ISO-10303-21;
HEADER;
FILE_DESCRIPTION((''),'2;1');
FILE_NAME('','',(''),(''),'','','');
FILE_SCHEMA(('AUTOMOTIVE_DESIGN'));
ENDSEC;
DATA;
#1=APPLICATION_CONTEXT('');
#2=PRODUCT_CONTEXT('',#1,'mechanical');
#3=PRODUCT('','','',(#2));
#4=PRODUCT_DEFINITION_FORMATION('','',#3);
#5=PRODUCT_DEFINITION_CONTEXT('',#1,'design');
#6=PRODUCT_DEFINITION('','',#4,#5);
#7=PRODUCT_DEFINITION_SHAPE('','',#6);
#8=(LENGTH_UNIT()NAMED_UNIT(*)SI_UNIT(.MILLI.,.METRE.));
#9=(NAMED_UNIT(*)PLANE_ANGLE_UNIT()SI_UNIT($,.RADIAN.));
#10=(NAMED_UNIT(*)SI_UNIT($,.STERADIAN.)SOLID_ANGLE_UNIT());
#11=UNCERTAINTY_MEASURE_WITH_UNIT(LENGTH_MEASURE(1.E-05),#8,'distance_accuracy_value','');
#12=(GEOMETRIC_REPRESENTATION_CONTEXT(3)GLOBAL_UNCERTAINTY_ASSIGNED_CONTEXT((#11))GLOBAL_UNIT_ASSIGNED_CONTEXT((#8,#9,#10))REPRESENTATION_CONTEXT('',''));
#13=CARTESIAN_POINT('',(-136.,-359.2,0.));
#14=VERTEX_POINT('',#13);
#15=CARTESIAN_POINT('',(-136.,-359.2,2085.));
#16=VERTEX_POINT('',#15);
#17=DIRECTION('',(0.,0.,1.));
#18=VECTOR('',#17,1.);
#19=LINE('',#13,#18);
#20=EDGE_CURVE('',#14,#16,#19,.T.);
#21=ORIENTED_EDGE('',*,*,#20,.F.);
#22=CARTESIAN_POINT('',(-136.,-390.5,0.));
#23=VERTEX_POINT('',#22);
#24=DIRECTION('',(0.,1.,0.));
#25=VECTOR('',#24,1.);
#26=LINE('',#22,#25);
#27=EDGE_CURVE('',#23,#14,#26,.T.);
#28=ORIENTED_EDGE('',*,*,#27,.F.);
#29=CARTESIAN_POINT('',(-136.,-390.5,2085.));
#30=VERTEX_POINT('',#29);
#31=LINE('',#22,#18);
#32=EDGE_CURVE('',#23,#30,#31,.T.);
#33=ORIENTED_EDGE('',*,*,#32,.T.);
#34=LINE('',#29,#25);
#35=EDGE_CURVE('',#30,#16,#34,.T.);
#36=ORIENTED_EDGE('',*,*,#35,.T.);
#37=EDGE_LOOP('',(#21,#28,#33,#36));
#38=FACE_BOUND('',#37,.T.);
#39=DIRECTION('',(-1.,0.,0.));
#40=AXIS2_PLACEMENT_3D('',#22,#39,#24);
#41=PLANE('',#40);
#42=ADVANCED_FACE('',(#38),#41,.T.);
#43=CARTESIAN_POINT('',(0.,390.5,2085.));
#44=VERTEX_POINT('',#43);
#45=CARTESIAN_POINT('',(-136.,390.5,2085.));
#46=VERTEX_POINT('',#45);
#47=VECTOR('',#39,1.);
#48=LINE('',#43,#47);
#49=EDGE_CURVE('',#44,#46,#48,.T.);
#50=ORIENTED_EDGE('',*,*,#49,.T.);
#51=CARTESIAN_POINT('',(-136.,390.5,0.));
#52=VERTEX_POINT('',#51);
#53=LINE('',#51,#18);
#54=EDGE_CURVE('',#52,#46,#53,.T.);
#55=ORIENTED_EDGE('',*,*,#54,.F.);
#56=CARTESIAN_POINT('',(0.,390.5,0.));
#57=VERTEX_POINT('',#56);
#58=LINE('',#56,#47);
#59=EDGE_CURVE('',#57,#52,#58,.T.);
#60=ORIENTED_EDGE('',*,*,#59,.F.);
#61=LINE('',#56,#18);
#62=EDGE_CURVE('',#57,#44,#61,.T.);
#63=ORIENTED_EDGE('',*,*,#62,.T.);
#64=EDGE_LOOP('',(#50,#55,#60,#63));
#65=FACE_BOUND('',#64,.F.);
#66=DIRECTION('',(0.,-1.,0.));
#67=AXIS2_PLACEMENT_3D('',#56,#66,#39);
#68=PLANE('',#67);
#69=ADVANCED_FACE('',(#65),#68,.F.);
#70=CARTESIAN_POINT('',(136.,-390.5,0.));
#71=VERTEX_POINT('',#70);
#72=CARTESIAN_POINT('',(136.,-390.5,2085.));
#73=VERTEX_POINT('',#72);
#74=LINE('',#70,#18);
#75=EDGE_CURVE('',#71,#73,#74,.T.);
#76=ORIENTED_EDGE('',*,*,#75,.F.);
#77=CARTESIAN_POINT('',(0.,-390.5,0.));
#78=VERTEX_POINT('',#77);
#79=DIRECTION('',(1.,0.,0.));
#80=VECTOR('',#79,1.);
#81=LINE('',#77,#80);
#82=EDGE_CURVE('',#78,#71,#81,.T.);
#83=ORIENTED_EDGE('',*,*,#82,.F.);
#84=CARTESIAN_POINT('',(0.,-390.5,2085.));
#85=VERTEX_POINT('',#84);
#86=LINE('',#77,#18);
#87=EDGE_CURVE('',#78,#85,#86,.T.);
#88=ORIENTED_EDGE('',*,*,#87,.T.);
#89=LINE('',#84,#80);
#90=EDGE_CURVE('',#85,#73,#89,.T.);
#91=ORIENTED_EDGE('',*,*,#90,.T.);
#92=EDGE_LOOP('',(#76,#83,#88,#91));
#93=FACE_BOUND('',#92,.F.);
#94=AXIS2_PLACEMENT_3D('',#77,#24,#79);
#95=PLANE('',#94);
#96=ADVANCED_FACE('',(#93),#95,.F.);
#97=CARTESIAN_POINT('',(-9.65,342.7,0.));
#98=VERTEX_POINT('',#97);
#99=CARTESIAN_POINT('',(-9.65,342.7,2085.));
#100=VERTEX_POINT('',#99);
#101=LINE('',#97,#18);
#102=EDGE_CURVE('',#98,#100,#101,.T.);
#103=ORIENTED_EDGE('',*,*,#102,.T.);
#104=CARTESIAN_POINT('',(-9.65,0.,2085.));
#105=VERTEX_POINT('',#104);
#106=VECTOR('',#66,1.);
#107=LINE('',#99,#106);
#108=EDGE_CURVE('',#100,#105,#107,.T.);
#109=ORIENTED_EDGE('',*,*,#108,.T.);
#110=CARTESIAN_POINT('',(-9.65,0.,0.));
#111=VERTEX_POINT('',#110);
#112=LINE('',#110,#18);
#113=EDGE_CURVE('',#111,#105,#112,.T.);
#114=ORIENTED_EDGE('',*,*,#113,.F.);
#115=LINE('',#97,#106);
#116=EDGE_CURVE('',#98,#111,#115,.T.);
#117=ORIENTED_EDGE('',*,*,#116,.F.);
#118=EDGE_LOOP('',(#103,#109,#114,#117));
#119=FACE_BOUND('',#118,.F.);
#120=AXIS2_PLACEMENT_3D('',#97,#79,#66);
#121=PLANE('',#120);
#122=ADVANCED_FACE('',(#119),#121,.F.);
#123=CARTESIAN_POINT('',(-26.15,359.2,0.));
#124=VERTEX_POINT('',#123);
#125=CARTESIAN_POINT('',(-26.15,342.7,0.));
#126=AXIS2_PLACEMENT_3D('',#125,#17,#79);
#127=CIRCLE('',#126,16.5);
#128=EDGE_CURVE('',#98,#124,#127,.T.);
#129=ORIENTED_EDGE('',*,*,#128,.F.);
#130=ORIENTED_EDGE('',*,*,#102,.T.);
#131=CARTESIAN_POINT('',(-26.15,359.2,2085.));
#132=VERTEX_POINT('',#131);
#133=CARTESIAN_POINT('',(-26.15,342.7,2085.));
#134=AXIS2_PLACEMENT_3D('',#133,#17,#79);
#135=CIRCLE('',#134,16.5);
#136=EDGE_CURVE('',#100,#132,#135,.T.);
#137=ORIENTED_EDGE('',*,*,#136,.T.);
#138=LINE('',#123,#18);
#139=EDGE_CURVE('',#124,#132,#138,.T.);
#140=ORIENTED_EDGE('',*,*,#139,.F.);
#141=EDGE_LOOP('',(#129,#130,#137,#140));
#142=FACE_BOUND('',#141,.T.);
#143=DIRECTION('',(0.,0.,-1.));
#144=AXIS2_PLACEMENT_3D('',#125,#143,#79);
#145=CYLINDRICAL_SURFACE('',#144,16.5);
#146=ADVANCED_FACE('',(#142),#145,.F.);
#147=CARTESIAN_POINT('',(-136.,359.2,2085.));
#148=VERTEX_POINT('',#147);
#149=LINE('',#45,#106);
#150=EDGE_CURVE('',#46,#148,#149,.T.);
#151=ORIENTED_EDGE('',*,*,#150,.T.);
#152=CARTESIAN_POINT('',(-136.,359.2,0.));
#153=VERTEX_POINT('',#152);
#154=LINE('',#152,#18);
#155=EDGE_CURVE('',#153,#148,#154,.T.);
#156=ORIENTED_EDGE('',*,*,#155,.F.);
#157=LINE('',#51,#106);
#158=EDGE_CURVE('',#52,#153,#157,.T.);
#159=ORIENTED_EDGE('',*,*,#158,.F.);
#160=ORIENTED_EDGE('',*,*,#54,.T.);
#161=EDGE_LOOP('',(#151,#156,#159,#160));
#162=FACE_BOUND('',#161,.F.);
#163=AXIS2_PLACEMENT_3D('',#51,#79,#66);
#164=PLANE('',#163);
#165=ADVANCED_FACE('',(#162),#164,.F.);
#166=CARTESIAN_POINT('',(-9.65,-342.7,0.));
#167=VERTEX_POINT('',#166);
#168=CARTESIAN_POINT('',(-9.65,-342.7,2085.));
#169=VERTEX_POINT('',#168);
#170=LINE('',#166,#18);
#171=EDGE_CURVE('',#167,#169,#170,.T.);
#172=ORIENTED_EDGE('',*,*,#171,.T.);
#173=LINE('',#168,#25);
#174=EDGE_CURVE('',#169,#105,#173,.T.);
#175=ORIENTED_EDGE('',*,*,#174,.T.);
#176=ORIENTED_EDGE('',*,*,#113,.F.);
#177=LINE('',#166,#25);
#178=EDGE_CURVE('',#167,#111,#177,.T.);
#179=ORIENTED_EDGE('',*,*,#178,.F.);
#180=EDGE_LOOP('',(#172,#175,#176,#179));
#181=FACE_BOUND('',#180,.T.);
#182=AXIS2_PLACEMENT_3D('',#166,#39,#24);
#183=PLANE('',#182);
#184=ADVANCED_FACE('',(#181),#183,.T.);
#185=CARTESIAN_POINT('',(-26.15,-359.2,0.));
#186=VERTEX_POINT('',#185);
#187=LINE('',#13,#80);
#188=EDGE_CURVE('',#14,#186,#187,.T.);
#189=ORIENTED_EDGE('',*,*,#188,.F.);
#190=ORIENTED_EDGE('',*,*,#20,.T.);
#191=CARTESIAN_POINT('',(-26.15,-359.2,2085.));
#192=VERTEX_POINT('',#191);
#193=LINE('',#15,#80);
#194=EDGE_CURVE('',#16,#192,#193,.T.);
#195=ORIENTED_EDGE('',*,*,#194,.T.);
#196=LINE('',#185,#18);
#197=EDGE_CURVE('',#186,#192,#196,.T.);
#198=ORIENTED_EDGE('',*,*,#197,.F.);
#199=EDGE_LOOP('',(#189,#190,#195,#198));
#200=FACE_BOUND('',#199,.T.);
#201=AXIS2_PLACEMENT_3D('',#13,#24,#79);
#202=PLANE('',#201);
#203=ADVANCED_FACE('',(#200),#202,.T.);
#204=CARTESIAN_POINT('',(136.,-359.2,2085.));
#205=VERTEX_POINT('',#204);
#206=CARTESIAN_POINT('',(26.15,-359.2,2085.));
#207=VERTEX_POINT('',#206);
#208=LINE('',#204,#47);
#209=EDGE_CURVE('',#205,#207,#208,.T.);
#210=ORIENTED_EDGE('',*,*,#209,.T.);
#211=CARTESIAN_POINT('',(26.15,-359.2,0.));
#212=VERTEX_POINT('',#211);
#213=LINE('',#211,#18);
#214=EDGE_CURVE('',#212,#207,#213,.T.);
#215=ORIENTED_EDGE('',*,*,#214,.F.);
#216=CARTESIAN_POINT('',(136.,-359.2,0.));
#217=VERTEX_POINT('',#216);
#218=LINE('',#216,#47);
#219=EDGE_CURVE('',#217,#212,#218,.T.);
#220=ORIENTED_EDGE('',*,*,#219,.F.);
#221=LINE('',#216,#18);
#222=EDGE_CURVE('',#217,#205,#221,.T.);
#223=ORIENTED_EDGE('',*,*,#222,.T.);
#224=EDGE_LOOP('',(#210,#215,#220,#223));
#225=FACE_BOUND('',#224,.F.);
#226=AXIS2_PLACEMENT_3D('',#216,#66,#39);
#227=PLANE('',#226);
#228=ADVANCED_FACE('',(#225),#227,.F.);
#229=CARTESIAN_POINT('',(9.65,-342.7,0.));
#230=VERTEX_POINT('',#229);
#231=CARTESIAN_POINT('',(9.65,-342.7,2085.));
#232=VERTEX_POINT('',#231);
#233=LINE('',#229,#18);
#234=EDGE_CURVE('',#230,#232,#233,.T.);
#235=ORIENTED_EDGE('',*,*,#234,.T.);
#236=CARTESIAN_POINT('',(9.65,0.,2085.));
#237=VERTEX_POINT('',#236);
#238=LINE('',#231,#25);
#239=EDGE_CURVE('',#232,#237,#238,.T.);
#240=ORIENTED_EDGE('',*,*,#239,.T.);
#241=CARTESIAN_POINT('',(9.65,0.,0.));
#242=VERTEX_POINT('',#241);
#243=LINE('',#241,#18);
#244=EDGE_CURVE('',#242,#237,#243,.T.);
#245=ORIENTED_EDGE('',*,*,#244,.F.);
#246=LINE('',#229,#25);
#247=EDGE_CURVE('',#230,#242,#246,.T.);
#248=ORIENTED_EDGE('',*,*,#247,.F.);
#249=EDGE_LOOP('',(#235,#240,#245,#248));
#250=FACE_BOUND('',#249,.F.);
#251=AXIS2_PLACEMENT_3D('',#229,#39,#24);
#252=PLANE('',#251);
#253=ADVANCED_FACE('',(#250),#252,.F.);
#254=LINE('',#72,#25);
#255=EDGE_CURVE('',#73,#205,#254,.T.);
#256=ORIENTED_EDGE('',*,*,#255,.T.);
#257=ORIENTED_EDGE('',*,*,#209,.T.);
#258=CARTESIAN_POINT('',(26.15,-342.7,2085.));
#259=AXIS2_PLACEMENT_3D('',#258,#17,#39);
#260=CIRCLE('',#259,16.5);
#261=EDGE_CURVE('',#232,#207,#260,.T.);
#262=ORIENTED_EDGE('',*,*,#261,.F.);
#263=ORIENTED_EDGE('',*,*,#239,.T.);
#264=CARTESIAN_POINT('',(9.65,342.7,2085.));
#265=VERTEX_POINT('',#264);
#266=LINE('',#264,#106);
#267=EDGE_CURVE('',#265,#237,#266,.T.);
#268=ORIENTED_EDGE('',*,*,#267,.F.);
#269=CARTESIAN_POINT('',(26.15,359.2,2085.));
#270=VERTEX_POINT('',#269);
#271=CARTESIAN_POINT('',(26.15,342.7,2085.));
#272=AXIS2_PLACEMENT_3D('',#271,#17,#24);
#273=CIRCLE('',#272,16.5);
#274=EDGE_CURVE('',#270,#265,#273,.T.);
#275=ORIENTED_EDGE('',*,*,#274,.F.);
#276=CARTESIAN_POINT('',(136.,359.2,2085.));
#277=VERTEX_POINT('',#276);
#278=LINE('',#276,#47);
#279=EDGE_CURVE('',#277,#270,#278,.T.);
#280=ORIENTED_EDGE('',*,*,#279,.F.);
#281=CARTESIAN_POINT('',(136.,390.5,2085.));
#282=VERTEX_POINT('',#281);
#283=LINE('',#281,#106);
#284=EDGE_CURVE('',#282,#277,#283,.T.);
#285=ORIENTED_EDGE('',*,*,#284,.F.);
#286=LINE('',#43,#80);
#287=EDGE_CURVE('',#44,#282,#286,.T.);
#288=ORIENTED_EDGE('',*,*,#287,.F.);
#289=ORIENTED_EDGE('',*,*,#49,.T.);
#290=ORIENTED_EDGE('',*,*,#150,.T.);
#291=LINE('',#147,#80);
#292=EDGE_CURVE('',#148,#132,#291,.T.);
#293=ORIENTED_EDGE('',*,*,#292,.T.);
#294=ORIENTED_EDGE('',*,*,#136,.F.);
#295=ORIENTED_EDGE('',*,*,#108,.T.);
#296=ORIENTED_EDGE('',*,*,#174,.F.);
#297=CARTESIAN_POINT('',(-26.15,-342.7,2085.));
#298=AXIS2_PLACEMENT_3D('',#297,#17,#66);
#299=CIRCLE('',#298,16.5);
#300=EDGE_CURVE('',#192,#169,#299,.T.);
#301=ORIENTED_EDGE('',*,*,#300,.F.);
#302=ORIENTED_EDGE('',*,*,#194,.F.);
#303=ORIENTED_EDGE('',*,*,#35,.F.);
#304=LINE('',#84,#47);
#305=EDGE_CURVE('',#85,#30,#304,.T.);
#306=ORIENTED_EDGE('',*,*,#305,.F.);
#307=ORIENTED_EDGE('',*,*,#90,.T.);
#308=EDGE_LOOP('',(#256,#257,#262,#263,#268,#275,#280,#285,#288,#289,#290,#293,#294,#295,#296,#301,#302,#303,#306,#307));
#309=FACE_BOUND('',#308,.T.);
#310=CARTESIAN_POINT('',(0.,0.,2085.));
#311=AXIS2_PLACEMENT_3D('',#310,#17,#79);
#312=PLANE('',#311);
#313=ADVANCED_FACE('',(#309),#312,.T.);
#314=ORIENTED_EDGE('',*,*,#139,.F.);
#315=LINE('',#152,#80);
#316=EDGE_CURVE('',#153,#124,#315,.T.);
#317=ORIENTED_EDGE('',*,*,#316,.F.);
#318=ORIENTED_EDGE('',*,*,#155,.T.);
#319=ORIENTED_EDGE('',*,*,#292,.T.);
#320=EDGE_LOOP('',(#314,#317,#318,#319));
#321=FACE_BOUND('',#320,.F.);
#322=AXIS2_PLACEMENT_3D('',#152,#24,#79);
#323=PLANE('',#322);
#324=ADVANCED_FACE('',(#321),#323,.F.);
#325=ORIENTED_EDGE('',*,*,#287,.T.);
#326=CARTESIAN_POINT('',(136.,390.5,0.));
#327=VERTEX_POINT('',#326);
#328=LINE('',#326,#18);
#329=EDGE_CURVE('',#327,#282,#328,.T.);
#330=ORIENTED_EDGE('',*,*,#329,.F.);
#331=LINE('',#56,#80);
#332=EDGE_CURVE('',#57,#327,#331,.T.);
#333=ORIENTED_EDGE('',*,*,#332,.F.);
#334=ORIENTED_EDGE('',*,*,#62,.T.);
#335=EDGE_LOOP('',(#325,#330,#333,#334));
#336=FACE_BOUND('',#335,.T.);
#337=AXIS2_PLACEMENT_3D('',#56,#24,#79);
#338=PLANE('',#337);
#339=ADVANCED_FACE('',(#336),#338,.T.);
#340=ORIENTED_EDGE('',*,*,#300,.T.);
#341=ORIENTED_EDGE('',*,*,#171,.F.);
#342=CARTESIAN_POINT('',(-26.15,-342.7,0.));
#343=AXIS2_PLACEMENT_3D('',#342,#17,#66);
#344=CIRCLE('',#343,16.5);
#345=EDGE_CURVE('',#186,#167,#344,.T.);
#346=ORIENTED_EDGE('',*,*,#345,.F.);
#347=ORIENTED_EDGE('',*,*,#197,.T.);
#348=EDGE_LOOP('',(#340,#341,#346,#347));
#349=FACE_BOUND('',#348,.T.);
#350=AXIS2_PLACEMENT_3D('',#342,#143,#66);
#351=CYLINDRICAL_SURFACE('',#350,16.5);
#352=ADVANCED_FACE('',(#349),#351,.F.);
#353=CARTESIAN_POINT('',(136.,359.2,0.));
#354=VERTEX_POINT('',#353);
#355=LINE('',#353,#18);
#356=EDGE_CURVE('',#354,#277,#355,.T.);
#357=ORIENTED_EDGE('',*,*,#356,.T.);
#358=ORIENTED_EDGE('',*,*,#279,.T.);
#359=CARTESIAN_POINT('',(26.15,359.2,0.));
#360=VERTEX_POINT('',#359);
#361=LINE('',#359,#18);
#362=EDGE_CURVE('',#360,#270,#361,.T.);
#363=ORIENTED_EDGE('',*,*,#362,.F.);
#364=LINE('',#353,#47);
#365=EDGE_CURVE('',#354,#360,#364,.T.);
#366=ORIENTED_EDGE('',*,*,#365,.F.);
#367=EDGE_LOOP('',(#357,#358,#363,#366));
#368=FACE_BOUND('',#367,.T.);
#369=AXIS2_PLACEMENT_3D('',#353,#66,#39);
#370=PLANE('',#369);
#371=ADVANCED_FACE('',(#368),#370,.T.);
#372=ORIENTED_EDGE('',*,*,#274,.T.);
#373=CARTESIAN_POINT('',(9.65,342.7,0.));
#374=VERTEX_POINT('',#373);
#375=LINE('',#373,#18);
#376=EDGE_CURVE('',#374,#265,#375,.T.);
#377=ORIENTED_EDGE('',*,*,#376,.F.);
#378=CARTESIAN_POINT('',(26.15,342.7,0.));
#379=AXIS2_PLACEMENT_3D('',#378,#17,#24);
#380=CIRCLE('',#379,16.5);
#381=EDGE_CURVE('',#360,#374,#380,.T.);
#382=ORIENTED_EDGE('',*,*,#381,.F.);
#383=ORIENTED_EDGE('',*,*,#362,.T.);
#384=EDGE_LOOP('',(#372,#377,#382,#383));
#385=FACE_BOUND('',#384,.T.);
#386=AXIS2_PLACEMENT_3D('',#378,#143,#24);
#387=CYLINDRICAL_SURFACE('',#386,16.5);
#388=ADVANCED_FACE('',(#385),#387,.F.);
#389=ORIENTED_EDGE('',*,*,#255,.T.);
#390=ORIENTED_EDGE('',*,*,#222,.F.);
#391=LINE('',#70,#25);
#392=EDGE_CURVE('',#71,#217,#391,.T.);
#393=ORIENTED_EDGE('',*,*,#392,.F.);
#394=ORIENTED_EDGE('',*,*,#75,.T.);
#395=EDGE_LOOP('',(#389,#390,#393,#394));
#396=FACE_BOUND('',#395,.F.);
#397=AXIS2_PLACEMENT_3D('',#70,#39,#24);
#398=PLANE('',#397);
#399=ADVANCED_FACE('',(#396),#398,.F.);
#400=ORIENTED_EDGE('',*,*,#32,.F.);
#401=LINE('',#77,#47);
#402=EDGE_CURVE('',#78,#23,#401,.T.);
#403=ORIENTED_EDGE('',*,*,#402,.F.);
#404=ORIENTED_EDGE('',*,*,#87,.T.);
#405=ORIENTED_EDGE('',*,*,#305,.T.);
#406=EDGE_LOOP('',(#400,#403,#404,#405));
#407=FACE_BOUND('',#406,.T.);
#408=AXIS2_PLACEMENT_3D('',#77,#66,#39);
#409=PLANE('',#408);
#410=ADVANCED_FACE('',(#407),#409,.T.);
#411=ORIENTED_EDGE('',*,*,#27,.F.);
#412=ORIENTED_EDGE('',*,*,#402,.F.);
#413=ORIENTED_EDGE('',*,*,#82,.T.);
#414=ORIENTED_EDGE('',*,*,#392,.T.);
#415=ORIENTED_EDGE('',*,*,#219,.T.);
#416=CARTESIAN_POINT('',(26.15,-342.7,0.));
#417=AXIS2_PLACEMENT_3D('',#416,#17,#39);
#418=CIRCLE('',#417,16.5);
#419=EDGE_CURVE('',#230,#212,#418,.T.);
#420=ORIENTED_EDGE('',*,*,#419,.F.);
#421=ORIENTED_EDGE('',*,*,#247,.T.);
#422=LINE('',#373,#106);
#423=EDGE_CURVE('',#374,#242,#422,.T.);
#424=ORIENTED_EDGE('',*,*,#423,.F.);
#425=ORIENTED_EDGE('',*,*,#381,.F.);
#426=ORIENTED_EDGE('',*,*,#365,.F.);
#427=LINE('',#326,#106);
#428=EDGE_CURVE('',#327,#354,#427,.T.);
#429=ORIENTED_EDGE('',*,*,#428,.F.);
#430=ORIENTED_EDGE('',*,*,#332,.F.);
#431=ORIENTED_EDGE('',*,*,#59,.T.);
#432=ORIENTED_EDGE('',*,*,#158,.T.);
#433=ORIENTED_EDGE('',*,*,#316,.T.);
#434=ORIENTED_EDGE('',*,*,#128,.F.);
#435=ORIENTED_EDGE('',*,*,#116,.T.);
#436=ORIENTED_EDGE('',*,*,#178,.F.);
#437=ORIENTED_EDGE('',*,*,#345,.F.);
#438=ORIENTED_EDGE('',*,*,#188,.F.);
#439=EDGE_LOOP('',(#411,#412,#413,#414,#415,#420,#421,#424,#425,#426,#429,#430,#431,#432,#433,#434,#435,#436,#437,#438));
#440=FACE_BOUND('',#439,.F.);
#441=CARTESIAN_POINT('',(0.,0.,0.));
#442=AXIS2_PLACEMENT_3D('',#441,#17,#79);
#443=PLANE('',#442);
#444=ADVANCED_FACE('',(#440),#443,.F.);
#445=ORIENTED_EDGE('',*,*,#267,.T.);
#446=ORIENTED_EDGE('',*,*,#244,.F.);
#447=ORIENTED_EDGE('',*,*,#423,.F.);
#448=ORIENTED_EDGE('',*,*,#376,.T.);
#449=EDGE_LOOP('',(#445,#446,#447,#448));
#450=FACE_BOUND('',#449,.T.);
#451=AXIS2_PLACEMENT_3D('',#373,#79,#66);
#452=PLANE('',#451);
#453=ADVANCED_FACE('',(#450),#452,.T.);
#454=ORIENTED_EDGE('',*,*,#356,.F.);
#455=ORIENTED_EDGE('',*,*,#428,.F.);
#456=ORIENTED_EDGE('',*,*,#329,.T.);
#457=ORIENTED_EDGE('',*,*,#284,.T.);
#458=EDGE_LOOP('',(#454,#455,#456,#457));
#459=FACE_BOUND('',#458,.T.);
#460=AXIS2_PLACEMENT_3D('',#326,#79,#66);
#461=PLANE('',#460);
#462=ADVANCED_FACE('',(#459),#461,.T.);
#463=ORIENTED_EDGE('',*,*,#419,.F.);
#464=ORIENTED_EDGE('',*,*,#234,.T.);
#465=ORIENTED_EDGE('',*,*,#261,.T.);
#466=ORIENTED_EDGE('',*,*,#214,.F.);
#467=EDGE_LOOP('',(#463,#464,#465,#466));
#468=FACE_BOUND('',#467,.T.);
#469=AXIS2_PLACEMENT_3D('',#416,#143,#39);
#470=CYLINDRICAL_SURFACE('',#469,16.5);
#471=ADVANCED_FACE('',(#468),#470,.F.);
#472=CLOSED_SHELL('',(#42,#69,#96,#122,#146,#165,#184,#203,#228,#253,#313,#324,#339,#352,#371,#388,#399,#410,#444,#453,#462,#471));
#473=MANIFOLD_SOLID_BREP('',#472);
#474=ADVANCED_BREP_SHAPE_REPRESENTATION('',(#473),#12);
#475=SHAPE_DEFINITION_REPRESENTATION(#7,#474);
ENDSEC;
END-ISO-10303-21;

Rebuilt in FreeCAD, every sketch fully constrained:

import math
import FreeCAD as App
import Part
import Sketcher
Q = App.Units.Quantity

doc = App.newDocument("Part")
body = doc.addObject("PartDesign::Body", "Body")

sketch1 = body.newObject("Sketcher::SketchObject", "Sketch")
sketch1.AttachmentSupport = (doc.getObject("XY_Plane"), [""])
sketch1.MapMode = "FlatFace"
sketch1.addGeometry([
    Part.LineSegment(App.Vector(-136, -359, 0), App.Vector(-136, -390, 0)),
    Part.LineSegment(App.Vector(-136, -390, 0), App.Vector(136, -390, 0)),
    Part.LineSegment(App.Vector(136, -390, 0), App.Vector(136, -359, 0)),
    Part.LineSegment(App.Vector(136, -359, 0), App.Vector(26, -359, 0)),
    Part.ArcOfCircle(Part.Circle(App.Vector(26, -343, 0), App.Vector(0, 0, 1), 16), math.radians(180), math.radians(270)),
    Part.LineSegment(App.Vector(10, -343, 0), App.Vector(10, 343, 0)),
    Part.ArcOfCircle(Part.Circle(App.Vector(26, 343, 0), App.Vector(0, 0, 1), 16), math.radians(90), math.radians(180)),
    Part.LineSegment(App.Vector(26, 359, 0), App.Vector(136, 359, 0)),
    Part.LineSegment(App.Vector(136, 359, 0), App.Vector(136, 390, 0)),
    Part.LineSegment(App.Vector(136, 390, 0), App.Vector(-136, 390, 0)),
    Part.LineSegment(App.Vector(-136, 390, 0), App.Vector(-136, 359, 0)),
    Part.LineSegment(App.Vector(-136, 359, 0), App.Vector(-26, 359, 0)),
    Part.ArcOfCircle(Part.Circle(App.Vector(-26, 343, 0), App.Vector(0, 0, 1), 16), math.radians(0), math.radians(90)),
    Part.LineSegment(App.Vector(-10, 343, 0), App.Vector(-10, -343, 0)),
    Part.ArcOfCircle(Part.Circle(App.Vector(-26, -343, 0), App.Vector(0, 0, 1), 16), math.radians(-90), math.radians(0)),
    Part.LineSegment(App.Vector(-26, -359, 0), App.Vector(-136, -359, 0)),
], False)
sketch1.addConstraint([
    Sketcher.Constraint("Coincident", 0, 2, 1, 1),
    Sketcher.Constraint("Coincident", 1, 2, 2, 1),
    Sketcher.Constraint("Coincident", 2, 2, 3, 1),
    Sketcher.Constraint("Tangent", 3, 2, 4, 2),
    Sketcher.Constraint("Tangent", 4, 1, 5, 1),
    Sketcher.Constraint("Tangent", 5, 2, 6, 2),
    Sketcher.Constraint("Tangent", 6, 1, 7, 1),
    Sketcher.Constraint("Coincident", 7, 2, 8, 1),
    Sketcher.Constraint("Coincident", 8, 2, 9, 1),
    Sketcher.Constraint("Coincident", 9, 2, 10, 1),
    Sketcher.Constraint("Coincident", 10, 2, 11, 1),
    Sketcher.Constraint("Tangent", 11, 2, 12, 2),
    Sketcher.Constraint("Tangent", 12, 1, 13, 1),
    Sketcher.Constraint("Tangent", 13, 2, 14, 2),
    Sketcher.Constraint("Tangent", 14, 1, 15, 1),
    Sketcher.Constraint("Coincident", 15, 2, 0, 1),
    Sketcher.Constraint("Vertical", 0),
    Sketcher.Constraint("Horizontal", 1),
    Sketcher.Constraint("Vertical", 2),
    Sketcher.Constraint("Horizontal", 3),
    Sketcher.Constraint("Vertical", 5),
    Sketcher.Constraint("Horizontal", 7),
    Sketcher.Constraint("Vertical", 8),
    Sketcher.Constraint("Horizontal", 9),
    Sketcher.Constraint("Vertical", 10),
    Sketcher.Constraint("Horizontal", 11),
    Sketcher.Constraint("Vertical", 13),
    Sketcher.Constraint("Horizontal", 15),
    Sketcher.Constraint("Equal", 4, 6),
    Sketcher.Constraint("Equal", 6, 12),
    Sketcher.Constraint("Equal", 12, 14),
    Sketcher.Constraint("Symmetric", 4, 3, 12, 3, -1, 1),
    Sketcher.Constraint("Symmetric", 0, 2, 8, 2, -1, 1),
    Sketcher.Constraint("Symmetric", 7, 2, 10, 2, -2),
    Sketcher.Constraint("Symmetric", 2, 2, 15, 2, -2),
    Sketcher.Constraint("Radius", 4, Q("16.5 mm")),
    Sketcher.Constraint("DistanceY", 0, 2, 0, 1, Q("31.3 mm")),
    Sketcher.Constraint("DistanceX", 0, 2, -1, 1, Q("136 mm")),
    Sketcher.Constraint("DistanceY", 0, 2, -1, 1, Q("390.5 mm")),
    Sketcher.Constraint("DistanceX", -1, 1, 4, 1, Q("9.65 mm")),
])
pad1 = body.newObject("PartDesign::Pad", "Pad")
pad1.Profile = sketch1
pad1.Length = 2085

doc.recompute()
